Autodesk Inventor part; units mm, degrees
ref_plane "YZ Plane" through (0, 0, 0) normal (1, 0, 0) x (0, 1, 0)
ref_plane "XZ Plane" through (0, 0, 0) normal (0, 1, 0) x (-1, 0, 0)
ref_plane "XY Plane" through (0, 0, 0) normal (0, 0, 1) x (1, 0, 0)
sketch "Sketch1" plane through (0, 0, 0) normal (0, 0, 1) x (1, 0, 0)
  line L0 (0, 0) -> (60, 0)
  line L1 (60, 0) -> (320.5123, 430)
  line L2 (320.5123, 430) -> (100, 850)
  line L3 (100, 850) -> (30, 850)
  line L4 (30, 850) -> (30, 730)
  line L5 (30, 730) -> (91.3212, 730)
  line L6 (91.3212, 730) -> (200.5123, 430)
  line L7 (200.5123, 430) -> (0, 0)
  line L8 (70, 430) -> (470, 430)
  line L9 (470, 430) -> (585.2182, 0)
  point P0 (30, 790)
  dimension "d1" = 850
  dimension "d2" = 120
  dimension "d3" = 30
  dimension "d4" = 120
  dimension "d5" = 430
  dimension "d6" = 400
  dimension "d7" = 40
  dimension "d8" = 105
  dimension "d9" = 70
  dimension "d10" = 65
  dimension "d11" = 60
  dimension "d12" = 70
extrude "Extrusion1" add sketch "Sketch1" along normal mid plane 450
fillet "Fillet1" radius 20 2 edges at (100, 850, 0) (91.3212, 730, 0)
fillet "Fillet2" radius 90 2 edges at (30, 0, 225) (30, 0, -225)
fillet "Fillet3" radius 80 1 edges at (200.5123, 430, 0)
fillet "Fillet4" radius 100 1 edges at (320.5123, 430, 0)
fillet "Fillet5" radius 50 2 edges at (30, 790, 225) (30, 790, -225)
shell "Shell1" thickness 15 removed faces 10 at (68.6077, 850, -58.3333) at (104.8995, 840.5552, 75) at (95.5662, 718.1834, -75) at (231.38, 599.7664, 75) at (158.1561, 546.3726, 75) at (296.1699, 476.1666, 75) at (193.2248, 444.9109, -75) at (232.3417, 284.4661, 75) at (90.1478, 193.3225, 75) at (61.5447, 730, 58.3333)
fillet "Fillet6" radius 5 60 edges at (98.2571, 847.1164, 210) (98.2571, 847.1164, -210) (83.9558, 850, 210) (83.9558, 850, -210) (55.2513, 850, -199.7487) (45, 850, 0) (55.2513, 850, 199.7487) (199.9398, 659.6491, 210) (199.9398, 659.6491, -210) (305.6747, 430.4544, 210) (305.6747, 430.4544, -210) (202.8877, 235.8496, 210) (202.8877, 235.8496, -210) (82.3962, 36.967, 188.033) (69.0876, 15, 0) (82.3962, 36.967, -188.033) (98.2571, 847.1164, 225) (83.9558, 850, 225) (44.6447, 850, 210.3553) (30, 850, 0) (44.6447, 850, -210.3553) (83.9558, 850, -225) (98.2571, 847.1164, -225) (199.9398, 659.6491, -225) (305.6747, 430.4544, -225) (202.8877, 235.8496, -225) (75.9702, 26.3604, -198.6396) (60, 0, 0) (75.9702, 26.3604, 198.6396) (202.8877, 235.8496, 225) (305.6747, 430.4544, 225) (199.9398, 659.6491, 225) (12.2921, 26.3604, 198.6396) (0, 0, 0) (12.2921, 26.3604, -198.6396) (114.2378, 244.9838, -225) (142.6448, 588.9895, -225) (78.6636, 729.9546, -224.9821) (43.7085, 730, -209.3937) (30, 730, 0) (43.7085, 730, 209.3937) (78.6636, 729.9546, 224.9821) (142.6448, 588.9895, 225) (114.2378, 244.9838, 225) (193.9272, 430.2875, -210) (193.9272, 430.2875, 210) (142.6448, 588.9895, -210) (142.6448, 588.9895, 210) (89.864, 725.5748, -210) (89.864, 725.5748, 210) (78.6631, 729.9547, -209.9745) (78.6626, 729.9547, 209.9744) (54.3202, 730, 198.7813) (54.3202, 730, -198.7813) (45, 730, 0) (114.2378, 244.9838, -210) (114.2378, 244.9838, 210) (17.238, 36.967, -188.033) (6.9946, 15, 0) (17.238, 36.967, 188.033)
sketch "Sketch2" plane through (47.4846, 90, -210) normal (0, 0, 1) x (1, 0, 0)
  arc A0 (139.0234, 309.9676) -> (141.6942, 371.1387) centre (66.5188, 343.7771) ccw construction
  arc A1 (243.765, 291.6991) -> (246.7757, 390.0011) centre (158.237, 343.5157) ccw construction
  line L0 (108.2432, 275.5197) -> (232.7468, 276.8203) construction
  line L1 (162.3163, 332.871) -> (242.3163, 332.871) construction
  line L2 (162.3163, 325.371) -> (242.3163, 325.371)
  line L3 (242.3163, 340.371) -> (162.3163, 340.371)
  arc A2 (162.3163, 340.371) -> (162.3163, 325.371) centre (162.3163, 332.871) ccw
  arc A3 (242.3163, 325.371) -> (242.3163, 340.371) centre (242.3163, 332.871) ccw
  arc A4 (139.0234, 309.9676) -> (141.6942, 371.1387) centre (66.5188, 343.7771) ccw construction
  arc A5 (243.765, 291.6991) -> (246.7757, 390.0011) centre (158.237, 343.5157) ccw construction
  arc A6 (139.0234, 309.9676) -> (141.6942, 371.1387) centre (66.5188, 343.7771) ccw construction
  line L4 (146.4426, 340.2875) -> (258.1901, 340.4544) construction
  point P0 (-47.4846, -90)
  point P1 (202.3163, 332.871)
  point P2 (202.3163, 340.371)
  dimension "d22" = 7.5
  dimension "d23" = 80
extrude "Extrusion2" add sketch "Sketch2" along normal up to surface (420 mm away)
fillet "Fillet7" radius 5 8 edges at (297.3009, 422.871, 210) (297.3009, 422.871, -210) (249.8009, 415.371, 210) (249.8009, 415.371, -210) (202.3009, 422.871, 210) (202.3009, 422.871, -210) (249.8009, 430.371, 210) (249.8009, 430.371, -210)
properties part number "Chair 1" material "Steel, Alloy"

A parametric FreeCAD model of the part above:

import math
import FreeCAD as App
import Part
import Sketcher
Q = App.Units.Quantity


def edges_at(feature, points):
    """Names of the edges that pass closest to the given points."""
    edges = feature.Shape.Edges
    near = lambda p: min(range(len(edges)), key=lambda i: edges[i].distToShape(Part.Vertex(*p))[0])
    return sorted({f"Edge{near(p) + 1}" for p in points})


def faces_at(feature, points):
    """Names of the faces that lie closest to the given points."""
    faces = feature.Shape.Faces
    near = lambda p: min(range(len(faces)), key=lambda i: faces[i].distToShape(Part.Vertex(*p))[0])
    return sorted({f"Face{near(p) + 1}" for p in points})

doc = App.newDocument("Part")
body = doc.addObject("PartDesign::Body", "Body")

# Sketch on XY plane
sketch1 = body.newObject("Sketcher::SketchObject", "Sketch")
sketch1.AttachmentSupport = (doc.getObject("XY_Plane"), [""])
sketch1.MapMode = "FlatFace"
sketch1.addGeometry([
    Part.LineSegment(App.Vector(200.5123, 430, 0), App.Vector(0, 0, 0)),  # 0
    Part.LineSegment(App.Vector(0, 0, 0), App.Vector(60, 0, 0)),  # 1
    Part.LineSegment(App.Vector(60, 0, 0), App.Vector(320.5123, 430, 0)),  # 2
    Part.LineSegment(App.Vector(320.5123, 430, 0), App.Vector(100, 850, 0)),  # 3
    Part.LineSegment(App.Vector(100, 850, 0), App.Vector(30, 850, 0)),  # 4
    Part.LineSegment(App.Vector(30, 850, 0), App.Vector(30, 730, 0)),  # 5
    Part.LineSegment(App.Vector(30, 730, 0), App.Vector(91.3212, 730, 0)),  # 6
    Part.LineSegment(App.Vector(91.3212, 730, 0), App.Vector(200.5123, 430, 0)),  # 7
], False)
sketch1.addConstraint([
    Sketcher.Constraint("Coincident", 0, 2, 1, 1),
    Sketcher.Constraint("Coincident", 1, 2, 2, 1),
    Sketcher.Constraint("Coincident", 2, 2, 3, 1),
    Sketcher.Constraint("Coincident", 3, 2, 4, 1),
    Sketcher.Constraint("Coincident", 4, 2, 5, 1),
    Sketcher.Constraint("Coincident", 5, 2, 6, 1),
    Sketcher.Constraint("Coincident", 6, 2, 7, 1),
    Sketcher.Constraint("Coincident", 7, 2, 0, 1),
    Sketcher.Constraint("Horizontal", 1),
    Sketcher.Constraint("Horizontal", 4),
    Sketcher.Constraint("Vertical", 5),
    Sketcher.Constraint("Horizontal", 6),
    Sketcher.Constraint("Coincident", 0, 2, -1, 1),
    Sketcher.Constraint("Horizontal", 2, 2, 7, 2),
    Sketcher.Constraint("DistanceX", 1, 1, 1, 2, 60.0),
    Sketcher.Constraint("DistanceX", 4, 2, 4, 1, 70.0),
    Sketcher.Constraint("DistanceY", 5, 2, 5, 1, 120.0),
    Sketcher.Constraint("Angle", 7, Q("-70 deg")),
    Sketcher.Constraint("DistanceY", -1, 1, 2, 2, 430.0),
    Sketcher.Constraint("DistanceY", -1, 1, 3, 2, 850.0),
    Sketcher.Constraint("DistanceX", -1, 1, 4, 2, 30.0),
    Sketcher.Constraint("DistanceX", 7, 2, 2, 2, 120.0),
    Sketcher.Constraint("Angle", 0, Q("-115 deg")),
])
pad1 = body.newObject("PartDesign::Pad", "Pad")
pad1.Profile = sketch1
pad1.Length = 450
pad1.Midplane = True
doc.recompute()

fillet = body.newObject("PartDesign::Fillet", "Fillet")
fillet.Base = (pad1, edges_at(pad1, [(100, 850, 0), (91.321, 730, 0)]))
fillet.Radius = 20
doc.recompute()

fillet2 = body.newObject("PartDesign::Fillet", "Fillet001")
fillet2.Base = (fillet, edges_at(fillet, [(30, 0, 225), (30, 0, -225)]))
fillet2.Radius = 90
doc.recompute()

fillet3 = body.newObject("PartDesign::Fillet", "Fillet002")
fillet3.Base = (fillet2, edges_at(fillet2, [(200.512, 430, 0)]))
fillet3.Radius = 80
doc.recompute()

fillet4 = body.newObject("PartDesign::Fillet", "Fillet003")
fillet4.Base = (fillet3, edges_at(fillet3, [(320.512, 430, 0)]))
fillet4.Radius = 100
doc.recompute()

fillet5 = body.newObject("PartDesign::Fillet", "Fillet004")
fillet5.Base = (fillet4, edges_at(fillet4, [(30, 790, 225), (30, 790, -225)]))
fillet5.Radius = 50
doc.recompute()

thickness = body.newObject("PartDesign::Thickness", "Thickness")
thickness.Base = (fillet5, faces_at(fillet5, [
    (68.608, 850, -58.333),
    (104.9, 840.555, 75),
    (95.566, 718.183, -75),
    (231.38, 599.766, 75),
    (158.156, 546.373, 75),
    (296.17, 476.167, 75),
    (193.225, 444.911, -75),
    (232.342, 284.466, 75),
    (90.148, 193.322, 75),
    (61.545, 730, 58.333),
]))
thickness.Value = 15
thickness.Reversed = True
thickness.Join = "Intersection"
doc.recompute()

fillet6 = body.newObject("PartDesign::Fillet", "Fillet005")
fillet6.Base = (thickness, edges_at(thickness, [
    (98.257, 847.116, 210),
    (98.257, 847.116, -210),
    (83.956, 850, 210),
    (83.956, 850, -210),
    (55.251, 850, -199.749),
    (45, 850, 0),
    (55.251, 850, 199.749),
    (199.94, 659.649, 210),
    (199.94, 659.649, -210),
    (305.675, 430.454, 210),
    (305.675, 430.454, -210),
    (202.888, 235.85, 210),
    (202.888, 235.85, -210),
    (82.396, 36.967, 188.033),
    (69.088, 15, 0),
    (82.396, 36.967, -188.033),
    (98.257, 847.116, 225),
    (83.956, 850, 225),
    (44.645, 850, 210.355),
    (30, 850, 0),
    (44.645, 850, -210.355),
    (83.956, 850, -225),
    (98.257, 847.116, -225),
    (199.94, 659.649, -225),
    (305.675, 430.454, -225),
    (202.888, 235.85, -225),
    (75.97, 26.36, -198.64),
    (60, 0, 0),
    (75.97, 26.36, 198.64),
    (202.888, 235.85, 225),
    (305.675, 430.454, 225),
    (199.94, 659.649, 225),
    (12.292, 26.36, 198.64),
    (0, 0, 0),
    (12.292, 26.36, -198.64),
    (114.238, 244.984, -225),
    (142.645, 588.99, -225),
    (78.664, 729.955, -224.982),
    (43.709, 730, -209.394),
    (30, 730, 0),
    (43.709, 730, 209.394),
    (78.664, 729.955, 224.982),
    (142.645, 588.99, 225),
    (114.238, 244.984, 225),
    (193.927, 430.288, -210),
    (193.927, 430.288, 210),
    (142.645, 588.99, -210),
    (142.645, 588.99, 210),
    (89.864, 725.575, -210),
    (89.864, 725.575, 210),
    (78.663, 729.955, -209.975),
    (78.663, 729.955, 209.974),
    (54.32, 730, 198.781),
    (54.32, 730, -198.781),
    (45, 730, 0),
    (114.238, 244.984, -210),
    (114.238, 244.984, 210),
    (17.238, 36.967, -188.033),
    (6.995, 15, 0),
    (17.238, 36.967, 188.033),
]))
fillet6.Radius = 5

# Sketch on XY plane
sketch2 = body.newObject("Sketcher::SketchObject", "Sketch001")
sketch2.AttachmentSupport = (doc.getObject("XY_Plane"), [""])
sketch2.MapMode = "FlatFace"
sketch2.AttachmentOffset = App.Placement(App.Vector(0, 0, -210), App.Rotation())
sketch2.addGeometry([
    Part.ArcOfCircle(Part.Circle(App.Vector(209.8009, 422.871, 0), App.Vector(0, 0, 1), 7.5), math.radians(90), math.radians(270)),
    Part.LineSegment(App.Vector(209.8009, 415.371, 0), App.Vector(289.8009, 415.371, 0)),
    Part.ArcOfCircle(Part.Circle(App.Vector(289.8009, 422.871, 0), App.Vector(0, 0, 1), 7.5), math.radians(-90), math.radians(90)),
    Part.LineSegment(App.Vector(289.8009, 430.371, 0), App.Vector(209.8009, 430.371, 0)),
], False)
sketch2.addConstraint([
    Sketcher.Constraint("Tangent", 0, 2, 1, 1),
    Sketcher.Constraint("Tangent", 1, 2, 2, 1),
    Sketcher.Constraint("Tangent", 2, 2, 3, 1),
    Sketcher.Constraint("Tangent", 3, 2, 0, 1),
    Sketcher.Constraint("Horizontal", 1),
    Sketcher.Constraint("Horizontal", 3),
    Sketcher.Constraint("Radius", 0, 7.5),
    Sketcher.Constraint("DistanceX", 1, 1, 1, 2, 80.0),
    Sketcher.Constraint("DistanceX", -1, 1, 0, 3, 209.801),
    Sketcher.Constraint("DistanceY", -1, 1, 0, 3, 422.871),
])
pad2 = body.newObject("PartDesign::Pad", "Pad001")
pad2.Profile = sketch2
pad2.Length = 420
doc.recompute()

fillet7 = body.newObject("PartDesign::Fillet", "Fillet006")
fillet7.Base = (pad2, edges_at(pad2, [
    (297.301, 422.871, 210),
    (297.301, 422.871, -210),
    (249.801, 415.371, 210),
    (249.801, 415.371, -210),
    (202.301, 422.871, 210),
    (202.301, 422.871, -210),
    (249.801, 430.371, 210),
    (249.801, 430.371, -210),
]))
fillet7.Radius = 5

doc.recompute()
